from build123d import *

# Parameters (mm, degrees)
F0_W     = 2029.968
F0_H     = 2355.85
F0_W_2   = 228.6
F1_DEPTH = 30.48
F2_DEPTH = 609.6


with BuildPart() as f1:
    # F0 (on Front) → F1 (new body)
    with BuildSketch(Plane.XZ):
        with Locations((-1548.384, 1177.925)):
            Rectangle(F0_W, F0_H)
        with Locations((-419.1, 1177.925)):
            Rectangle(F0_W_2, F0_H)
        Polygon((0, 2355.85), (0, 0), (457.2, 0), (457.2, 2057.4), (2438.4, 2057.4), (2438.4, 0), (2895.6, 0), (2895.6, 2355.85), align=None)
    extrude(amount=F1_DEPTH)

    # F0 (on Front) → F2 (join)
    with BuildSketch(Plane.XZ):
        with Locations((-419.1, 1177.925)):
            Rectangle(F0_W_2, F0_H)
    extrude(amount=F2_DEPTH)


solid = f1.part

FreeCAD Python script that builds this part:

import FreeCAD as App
import Part
import Sketcher

V = App.Vector
Q = App.Units.Quantity


def add_polygon(sketch, points):
    """Adds a closed chain of lines whose ends are joined by coincident constraints."""
    first, n = sketch.GeometryCount, len(points)
    for a, b in zip(points, points[1:] + points[:1]):
        sketch.addGeometry(Part.LineSegment(App.Vector(*a, 0), App.Vector(*b, 0)), False)
    for i in range(n):
        sketch.addConstraint(Sketcher.Constraint("Coincident", first + i, 2, first + (i + 1) % n, 1))

doc = App.newDocument("Part")
params = doc.addObject("Spreadsheet::Sheet", "Params")
for row, (alias, value) in enumerate([
    ("sketch1_width", "18 in"),
    ("sketch1_width2", "78 in"),
    ("sketch1_height", "81 in"),
    ("sketch1_width3", "88.92 in"),
    ("sketch1_height2", "92.75 in"),
    ("pad1_length", "1.2 in"),
    ("sketch2_width", "9 in"),
    ("sketch2_height", "92.75 in"),
    ("pad2_length", "24 in"),
], start=1):
    params.set(f"A{row}", alias)
    params.set(f"B{row}", "=" + value)
    params.setAlias(f"B{row}", alias)

body = doc.addObject("PartDesign::Body", "Body")
body.AllowCompound = True

# Sketch on XZ plane
sketch1 = body.newObject("Sketcher::SketchObject", "Sketch")
sketch1.AttachmentSupport = (doc.getObject("XZ_Plane"), [""])
sketch1.MapMode = "FlatFace"
add_polygon(sketch1, [(-2563.368, 2355.85), (-2563.368, 0), (-304.8, 0), (-304.8, 2355.85)])  # lines 0-3
add_polygon(sketch1, [(0, 2355.85), (0, 0), (457.2, 0), (457.2, 2057.4), (2438.4, 2057.4), (2438.4, 0), (2895.6, 0), (2895.6, 2355.85)])  # lines 4-11
sketch1.addConstraint([
    Sketcher.Constraint("Vertical", 0),
    Sketcher.Constraint("Horizontal", 1),
    Sketcher.Constraint("Vertical", 2),
    Sketcher.Constraint("Horizontal", 3),
    Sketcher.Constraint("Vertical", 4),
    Sketcher.Constraint("Horizontal", 5),
    Sketcher.Constraint("Vertical", 6),
    Sketcher.Constraint("Horizontal", 7),
    Sketcher.Constraint("Vertical", 8),
    Sketcher.Constraint("Horizontal", 9),
    Sketcher.Constraint("Vertical", 10),
    Sketcher.Constraint("Horizontal", 11),
    Sketcher.Constraint("Coincident", 4, 2, -1, 1),
    Sketcher.Constraint("PointOnObject", 0, 2, -1),
    Sketcher.Constraint("PointOnObject", 8, 2, -1),
    Sketcher.Constraint("Horizontal", 3, 2, 10, 2),
    Sketcher.Constraint("Equal", 5, 9),
    Sketcher.Constraint("DistanceX", 5, 1, 5, 2, Q("18 in")),
    Sketcher.Constraint("DistanceX", 7, 1, 7, 2, Q("78 in")),
    Sketcher.Constraint("DistanceY", 6, 1, 6, 2, Q("81 in")),
    Sketcher.Constraint("DistanceX", 1, 2, -1, 1, Q("12 in")),
    Sketcher.Constraint("DistanceX", 1, 1, 1, 2, Q("88.92 in")),
    Sketcher.Constraint("DistanceY", 0, 2, 0, 1, Q("92.75 in")),
])
sketch1.setExpression("Constraints[29]", "Params.sketch1_width")
sketch1.setExpression("Constraints[30]", "Params.sketch1_width2")
sketch1.setExpression("Constraints[31]", "Params.sketch1_height")
sketch1.setExpression("Constraints[33]", "Params.sketch1_width3")
sketch1.setExpression("Constraints[34]", "Params.sketch1_height2")
pad1 = body.newObject("PartDesign::Pad", "Pad")
pad1.Profile = sketch1
pad1.setExpression("Length", "Params.pad1_length")

# Sketch on XZ plane
sketch2 = body.newObject("Sketcher::SketchObject", "Sketch001")
sketch2.AttachmentSupport = (doc.getObject("XZ_Plane"), [""])
sketch2.MapMode = "FlatFace"
add_polygon(sketch2, [(-533.4, 2355.85), (-533.4, 0), (-304.8, 0), (-304.8, 2355.85)])  # lines 0-3
sketch2.addConstraint([
    Sketcher.Constraint("Vertical", 0),
    Sketcher.Constraint("Horizontal", 1),
    Sketcher.Constraint("Vertical", 2),
    Sketcher.Constraint("Horizontal", 3),
    Sketcher.Constraint("PointOnObject", 0, 2, -1),
    Sketcher.Constraint("DistanceX", 1, 1, 1, 2, Q("9 in")),
    Sketcher.Constraint("DistanceX", 0, 2, -1, 1, Q("21 in")),
    Sketcher.Constraint("DistanceY", 0, 2, 0, 1, Q("92.75 in")),
])
sketch2.setExpression("Constraints[9]", "Params.sketch2_width")
sketch2.setExpression("Constraints[11]", "Params.sketch2_height")
pad2 = body.newObject("PartDesign::Pad", "Pad001")
pad2.Profile = sketch2
pad2.setExpression("Length", "Params.pad2_length")

doc.recompute()
